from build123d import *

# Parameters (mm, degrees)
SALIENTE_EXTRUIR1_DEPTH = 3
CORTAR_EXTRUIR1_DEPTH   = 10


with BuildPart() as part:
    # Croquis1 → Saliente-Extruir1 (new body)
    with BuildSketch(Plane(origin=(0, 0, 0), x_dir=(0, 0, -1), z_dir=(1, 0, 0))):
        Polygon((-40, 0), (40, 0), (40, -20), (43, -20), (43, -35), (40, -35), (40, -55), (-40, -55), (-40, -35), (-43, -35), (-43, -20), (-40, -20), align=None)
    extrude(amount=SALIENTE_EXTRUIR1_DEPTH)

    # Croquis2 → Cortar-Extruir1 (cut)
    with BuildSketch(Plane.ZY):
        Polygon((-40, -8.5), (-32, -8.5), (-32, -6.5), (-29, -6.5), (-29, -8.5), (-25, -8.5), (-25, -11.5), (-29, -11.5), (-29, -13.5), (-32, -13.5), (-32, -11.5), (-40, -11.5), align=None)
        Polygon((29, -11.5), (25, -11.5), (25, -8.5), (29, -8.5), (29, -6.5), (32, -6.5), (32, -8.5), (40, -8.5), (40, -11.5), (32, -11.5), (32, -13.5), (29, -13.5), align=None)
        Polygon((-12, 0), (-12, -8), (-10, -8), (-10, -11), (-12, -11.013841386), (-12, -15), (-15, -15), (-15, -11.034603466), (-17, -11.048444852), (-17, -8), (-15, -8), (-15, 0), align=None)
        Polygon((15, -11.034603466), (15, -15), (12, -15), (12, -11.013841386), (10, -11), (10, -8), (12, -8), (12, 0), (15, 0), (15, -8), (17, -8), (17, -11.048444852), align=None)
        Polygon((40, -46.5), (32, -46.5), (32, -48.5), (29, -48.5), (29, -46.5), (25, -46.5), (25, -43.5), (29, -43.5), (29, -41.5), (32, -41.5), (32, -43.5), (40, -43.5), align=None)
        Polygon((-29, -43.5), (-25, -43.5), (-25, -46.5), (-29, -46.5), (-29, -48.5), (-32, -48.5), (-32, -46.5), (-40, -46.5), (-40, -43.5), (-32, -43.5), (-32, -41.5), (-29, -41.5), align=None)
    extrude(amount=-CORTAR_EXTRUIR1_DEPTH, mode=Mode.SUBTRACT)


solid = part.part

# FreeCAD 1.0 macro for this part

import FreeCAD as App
import Part
import Sketcher

doc = App.newDocument("Part")
body = doc.addObject("PartDesign::Body", "Body")

sketch1 = body.newObject("Sketcher::SketchObject", "Sketch")
sketch1.AttachmentSupport = (doc.getObject("YZ_Plane"), [""])
sketch1.MapMode = "FlatFace"
sketch1.addGeometry([
    Part.LineSegment(App.Vector(0, -40, 0), App.Vector(0, 40, 0)),
    Part.LineSegment(App.Vector(0, 40, 0), App.Vector(-20, 40, 0)),
    Part.LineSegment(App.Vector(-20, 40, 0), App.Vector(-20, 43, 0)),
    Part.LineSegment(App.Vector(-20, 43, 0), App.Vector(-35, 43, 0)),
    Part.LineSegment(App.Vector(-35, 43, 0), App.Vector(-35, 40, 0)),
    Part.LineSegment(App.Vector(-35, 40, 0), App.Vector(-55, 40, 0)),
    Part.LineSegment(App.Vector(-55, 40, 0), App.Vector(-55, -40, 0)),
    Part.LineSegment(App.Vector(-55, -40, 0), App.Vector(-35, -40, 0)),
    Part.LineSegment(App.Vector(-35, -40, 0), App.Vector(-35, -43, 0)),
    Part.LineSegment(App.Vector(-35, -43, 0), App.Vector(-20, -43, 0)),
    Part.LineSegment(App.Vector(-20, -43, 0), App.Vector(-20, -40, 0)),
    Part.LineSegment(App.Vector(-20, -40, 0), App.Vector(0, -40, 0)),
], False)
sketch1.addConstraint([
    Sketcher.Constraint("Coincident", 0, 2, 1, 1),
    Sketcher.Constraint("Coincident", 1, 2, 2, 1),
    Sketcher.Constraint("Coincident", 2, 2, 3, 1),
    Sketcher.Constraint("Coincident", 3, 2, 4, 1),
    Sketcher.Constraint("Coincident", 4, 2, 5, 1),
    Sketcher.Constraint("Coincident", 5, 2, 6, 1),
    Sketcher.Constraint("Coincident", 6, 2, 7, 1),
    Sketcher.Constraint("Coincident", 7, 2, 8, 1),
    Sketcher.Constraint("Coincident", 8, 2, 9, 1),
    Sketcher.Constraint("Coincident", 9, 2, 10, 1),
    Sketcher.Constraint("Coincident", 10, 2, 11, 1),
    Sketcher.Constraint("Coincident", 11, 2, 0, 1),
    Sketcher.Constraint("Vertical", 0),
    Sketcher.Constraint("Horizontal", 1),
    Sketcher.Constraint("Vertical", 2),
    Sketcher.Constraint("Horizontal", 3),
    Sketcher.Constraint("Vertical", 4),
    Sketcher.Constraint("Horizontal", 5),
    Sketcher.Constraint("Vertical", 6),
    Sketcher.Constraint("Horizontal", 7),
    Sketcher.Constraint("Vertical", 8),
    Sketcher.Constraint("Horizontal", 9),
    Sketcher.Constraint("Vertical", 10),
    Sketcher.Constraint("Horizontal", 11),
    Sketcher.Constraint("Symmetric", 0, 2, 11, 2, -1, 1),
    Sketcher.Constraint("Symmetric", 4, 2, 7, 2, -1),
    Sketcher.Constraint("Symmetric", 2, 2, 9, 2, -1),
    Sketcher.Constraint("Horizontal", 1, 2, 4, 2),
    Sketcher.Constraint("Equal", 1, 5),
    Sketcher.Constraint("DistanceX", 1, 2, 1, 1, 20.0),
    Sketcher.Constraint("DistanceX", 3, 2, 3, 1, 15.0),
    Sketcher.Constraint("DistanceY", 0, 1, 0, 2, 80.0),
    Sketcher.Constraint("DistanceY", 2, 1, 2, 2, 3.0),
])
pad1 = body.newObject("PartDesign::Pad", "Pad")
pad1.Profile = sketch1
pad1.Length = 3

sketch2 = body.newObject("Sketcher::SketchObject", "Sketch001")
sketch2.AttachmentSupport = (doc.getObject("YZ_Plane"), [""])
sketch2.MapMode = "FlatFace"
sketch2.addGeometry([
    Part.LineSegment(App.Vector(-8.5, -32, 0), App.Vector(-8.5, -40, 0)),
    Part.LineSegment(App.Vector(-8.5, -40, 0), App.Vector(-11.5, -40, 0)),
    Part.LineSegment(App.Vector(-11.5, -40, 0), App.Vector(-11.5, -32, 0)),
    Part.LineSegment(App.Vector(-11.5, -32, 0), App.Vector(-13.5, -32, 0)),
    Part.LineSegment(App.Vector(-13.5, -32, 0), App.Vector(-13.5, -29, 0)),
    Part.LineSegment(App.Vector(-13.5, -29, 0), App.Vector(-11.5, -29, 0)),
    Part.LineSegment(App.Vector(-11.5, -29, 0), App.Vector(-11.5, -25, 0)),
    Part.LineSegment(App.Vector(-11.5, -25, 0), App.Vector(-8.5, -25, 0)),
    Part.LineSegment(App.Vector(-8.5, -25, 0), App.Vector(-8.5, -29, 0)),
    Part.LineSegment(App.Vector(-8.5, -29, 0), App.Vector(-6.5, -29, 0)),
    Part.LineSegment(App.Vector(-6.5, -29, 0), App.Vector(-6.5, -32, 0)),
    Part.LineSegment(App.Vector(-6.5, -32, 0), App.Vector(-8.5, -32, 0)),
    Part.LineSegment(App.Vector(-11.5, 25, 0), App.Vector(-11.5, 29, 0)),
    Part.LineSegment(App.Vector(-11.5, 29, 0), App.Vector(-13.5, 29, 0)),
    Part.LineSegment(App.Vector(-13.5, 29, 0), App.Vector(-13.5, 32, 0)),
    Part.LineSegment(App.Vector(-13.5, 32, 0), App.Vector(-11.5, 32, 0)),
    Part.LineSegment(App.Vector(-11.5, 32, 0), App.Vector(-11.5, 40, 0)),
    Part.LineSegment(App.Vector(-11.5, 40, 0), App.Vector(-8.5, 40, 0)),
    Part.LineSegment(App.Vector(-8.5, 40, 0), App.Vector(-8.5, 32, 0)),
    Part.LineSegment(App.Vector(-8.5, 32, 0), App.Vector(-6.5, 32, 0)),
    Part.LineSegment(App.Vector(-6.5, 32, 0), App.Vector(-6.5, 29, 0)),
    Part.LineSegment(App.Vector(-6.5, 29, 0), App.Vector(-8.5, 29, 0)),
    Part.LineSegment(App.Vector(-8.5, 29, 0), App.Vector(-8.5, 25, 0)),
    Part.LineSegment(App.Vector(-8.5, 25, 0), App.Vector(-11.5, 25, 0)),
    Part.LineSegment(App.Vector(-8, -12, 0), App.Vector(0, -12, 0)),
    Part.LineSegment(App.Vector(0, -12, 0), App.Vector(0, -15, 0)),
    Part.LineSegment(App.Vector(0, -15, 0), App.Vector(-8, -15, 0)),
    Part.LineSegment(App.Vector(-8, -15, 0), App.Vector(-8, -17, 0)),
    Part.LineSegment(App.Vector(-8, -17, 0), App.Vector(-11, -17, 0)),
    Part.LineSegment(App.Vector(-11, -17, 0), App.Vector(-11, -15, 0)),
    Part.LineSegment(App.Vector(-11, -15, 0), App.Vector(-15, -15, 0)),
    Part.LineSegment(App.Vector(-15, -15, 0), App.Vector(-15, -12, 0)),
    Part.LineSegment(App.Vector(-15, -12, 0), App.Vector(-11, -12, 0)),
    Part.LineSegment(App.Vector(-11, -12, 0), App.Vector(-11, -10, 0)),
    Part.LineSegment(App.Vector(-11, -10, 0), App.Vector(-8, -10, 0)),
    Part.LineSegment(App.Vector(-8, -10, 0), App.Vector(-8, -12, 0)),
    Part.LineSegment(App.Vector(-15, 15, 0), App.Vector(-11, 15, 0)),
    Part.LineSegment(App.Vector(-11, 15, 0), App.Vector(-11, 17, 0)),
    Part.LineSegment(App.Vector(-11, 17, 0), App.Vector(-8, 17, 0)),
    Part.LineSegment(App.Vector(-8, 17, 0), App.Vector(-8, 15, 0)),
    Part.LineSegment(App.Vector(-8, 15, 0), App.Vector(0, 15, 0)),
    Part.LineSegment(App.Vector(0, 15, 0), App.Vector(0, 12, 0)),
    Part.LineSegment(App.Vector(0, 12, 0), App.Vector(-8, 12, 0)),
    Part.LineSegment(App.Vector(-8, 12, 0), App.Vector(-8, 10, 0)),
    Part.LineSegment(App.Vector(-8, 10, 0), App.Vector(-11, 10, 0)),
    Part.LineSegment(App.Vector(-11, 10, 0), App.Vector(-11, 12, 0)),
    Part.LineSegment(App.Vector(-11, 12, 0), App.Vector(-15, 12, 0)),
    Part.LineSegment(App.Vector(-15, 12, 0), App.Vector(-15, 15, 0)),
    Part.LineSegment(App.Vector(-46.5, 32, 0), App.Vector(-46.5, 40, 0)),
    Part.LineSegment(App.Vector(-46.5, 40, 0), App.Vector(-43.5, 40, 0)),
    Part.LineSegment(App.Vector(-43.5, 40, 0), App.Vector(-43.5, 32, 0)),
    Part.LineSegment(App.Vector(-43.5, 32, 0), App.Vector(-41.5, 32, 0)),
    Part.LineSegment(App.Vector(-41.5, 32, 0), App.Vector(-41.5, 29, 0)),
    Part.LineSegment(App.Vector(-41.5, 29, 0), App.Vector(-43.5, 29, 0)),
    Part.LineSegment(App.Vector(-43.5, 29, 0), App.Vector(-43.5, 25, 0)),
    Part.LineSegment(App.Vector(-43.5, 25, 0), App.Vector(-46.5, 25, 0)),
    Part.LineSegment(App.Vector(-46.5, 25, 0), App.Vector(-46.5, 29, 0)),
    Part.LineSegment(App.Vector(-46.5, 29, 0), App.Vector(-48.5, 29, 0)),
    Part.LineSegment(App.Vector(-48.5, 29, 0), App.Vector(-48.5, 32, 0)),
    Part.LineSegment(App.Vector(-48.5, 32, 0), App.Vector(-46.5, 32, 0)),
    Part.LineSegment(App.Vector(-43.5, -25, 0), App.Vector(-43.5, -29, 0)),
    Part.LineSegment(App.Vector(-43.5, -29, 0), App.Vector(-41.5, -29, 0)),
    Part.LineSegment(App.Vector(-41.5, -29, 0), App.Vector(-41.5, -32, 0)),
    Part.LineSegment(App.Vector(-41.5, -32, 0), App.Vector(-43.5, -32, 0)),
    Part.LineSegment(App.Vector(-43.5, -32, 0), App.Vector(-43.5, -40, 0)),
    Part.LineSegment(App.Vector(-43.5, -40, 0), App.Vector(-46.5, -40, 0)),
    Part.LineSegment(App.Vector(-46.5, -40, 0), App.Vector(-46.5, -32, 0)),
    Part.LineSegment(App.Vector(-46.5, -32, 0), App.Vector(-48.5, -32, 0)),
    Part.LineSegment(App.Vector(-48.5, -32, 0), App.Vector(-48.5, -29, 0)),
    Part.LineSegment(App.Vector(-48.5, -29, 0), App.Vector(-46.5, -29, 0)),
    Part.LineSegment(App.Vector(-46.5, -29, 0), App.Vector(-46.5, -25, 0)),
    Part.LineSegment(App.Vector(-46.5, -25, 0), App.Vector(-43.5, -25, 0)),
], False)
sketch2.addConstraint([
    Sketcher.Constraint("Coincident", 0, 2, 1, 1),
    Sketcher.Constraint("Coincident", 1, 2, 2, 1),
    Sketcher.Constraint("Coincident", 2, 2, 3, 1),
    Sketcher.Constraint("Coincident", 3, 2, 4, 1),
    Sketcher.Constraint("Coincident", 4, 2, 5, 1),
    Sketcher.Constraint("Coincident", 5, 2, 6, 1),
    Sketcher.Constraint("Coincident", 6, 2, 7, 1),
    Sketcher.Constraint("Coincident", 7, 2, 8, 1),
    Sketcher.Constraint("Coincident", 8, 2, 9, 1),
    Sketcher.Constraint("Coincident", 9, 2, 10, 1),
    Sketcher.Constraint("Coincident", 10, 2, 11, 1),
    Sketcher.Constraint("Coincident", 11, 2, 0, 1),
    Sketcher.Constraint("Coincident", 12, 2, 13, 1),
    Sketcher.Constraint("Coincident", 13, 2, 14, 1),
    Sketcher.Constraint("Coincident", 14, 2, 15, 1),
    Sketcher.Constraint("Coincident", 15, 2, 16, 1),
    Sketcher.Constraint("Coincident", 16, 2, 17, 1),
    Sketcher.Constraint("Coincident", 17, 2, 18, 1),
    Sketcher.Constraint("Coincident", 18, 2, 19, 1),
    Sketcher.Constraint("Coincident", 19, 2, 20, 1),
    Sketcher.Constraint("Coincident", 20, 2, 21, 1),
    Sketcher.Constraint("Coincident", 21, 2, 22, 1),
    Sketcher.Constraint("Coincident", 22, 2, 23, 1),
    Sketcher.Constraint("Coincident", 23, 2, 12, 1),
    Sketcher.Constraint("Coincident", 24, 2, 25, 1),
    Sketcher.Constraint("Coincident", 25, 2, 26, 1),
    Sketcher.Constraint("Coincident", 26, 2, 27, 1),
    Sketcher.Constraint("Coincident", 27, 2, 28, 1),
    Sketcher.Constraint("Coincident", 28, 2, 29, 1),
    Sketcher.Constraint("Coincident", 29, 2, 30, 1),
    Sketcher.Constraint("Coincident", 30, 2, 31, 1),
    Sketcher.Constraint("Coincident", 31, 2, 32, 1),
    Sketcher.Constraint("Coincident", 32, 2, 33, 1),
    Sketcher.Constraint("Coincident", 33, 2, 34, 1),
    Sketcher.Constraint("Coincident", 34, 2, 35, 1),
    Sketcher.Constraint("Coincident", 35, 2, 24, 1),
    Sketcher.Constraint("Coincident", 36, 2, 37, 1),
    Sketcher.Constraint("Coincident", 37, 2, 38, 1),
    Sketcher.Constraint("Coincident", 38, 2, 39, 1),
    Sketcher.Constraint("Coincident", 39, 2, 40, 1),
    Sketcher.Constraint("Coincident", 40, 2, 41, 1),
    Sketcher.Constraint("Coincident", 41, 2, 42, 1),
    Sketcher.Constraint("Coincident", 42, 2, 43, 1),
    Sketcher.Constraint("Coincident", 43, 2, 44, 1),
    Sketcher.Constraint("Coincident", 44, 2, 45, 1),
    Sketcher.Constraint("Coincident", 45, 2, 46, 1),
    Sketcher.Constraint("Coincident", 46, 2, 47, 1),
    Sketcher.Constraint("Coincident", 47, 2, 36, 1),
    Sketcher.Constraint("Coincident", 48, 2, 49, 1),
    Sketcher.Constraint("Coincident", 49, 2, 50, 1),
    Sketcher.Constraint("Coincident", 50, 2, 51, 1),
    Sketcher.Constraint("Coincident", 51, 2, 52, 1),
    Sketcher.Constraint("Coincident", 52, 2, 53, 1),
    Sketcher.Constraint("Coincident", 53, 2, 54, 1),
    Sketcher.Constraint("Coincident", 54, 2, 55, 1),
    Sketcher.Constraint("Coincident", 55, 2, 56, 1),
    Sketcher.Constraint("Coincident", 56, 2, 57, 1),
    Sketcher.Constraint("Coincident", 57, 2, 58, 1),
    Sketcher.Constraint("Coincident", 58, 2, 59, 1),
    Sketcher.Constraint("Coincident", 59, 2, 48, 1),
    Sketcher.Constraint("Coincident", 60, 2, 61, 1),
    Sketcher.Constraint("Coincident", 61, 2, 62, 1),
    Sketcher.Constraint("Coincident", 62, 2, 63, 1),
    Sketcher.Constraint("Coincident", 63, 2, 64, 1),
    Sketcher.Constraint("Coincident", 64, 2, 65, 1),
    Sketcher.Constraint("Coincident", 65, 2, 66, 1),
    Sketcher.Constraint("Coincident", 66, 2, 67, 1),
    Sketcher.Constraint("Coincident", 67, 2, 68, 1),
    Sketcher.Constraint("Coincident", 68, 2, 69, 1),
    Sketcher.Constraint("Coincident", 69, 2, 70, 1),
    Sketcher.Constraint("Coincident", 70, 2, 71, 1),
    Sketcher.Constraint("Coincident", 71, 2, 60, 1),
    Sketcher.Constraint("Vertical", 0),
    Sketcher.Constraint("Horizontal", 1),
    Sketcher.Constraint("Vertical", 2),
    Sketcher.Constraint("Horizontal", 3),
    Sketcher.Constraint("Vertical", 4),
    Sketcher.Constraint("Horizontal", 5),
    Sketcher.Constraint("Vertical", 6),
    Sketcher.Constraint("Horizontal", 7),
    Sketcher.Constraint("Vertical", 8),
    Sketcher.Constraint("Horizontal", 9),
    Sketcher.Constraint("Vertical", 10),
    Sketcher.Constraint("Horizontal", 11),
    Sketcher.Constraint("Vertical", 12),
    Sketcher.Constraint("Horizontal", 13),
    Sketcher.Constraint("Vertical", 14),
    Sketcher.Constraint("Horizontal", 15),
    Sketcher.Constraint("Vertical", 16),
    Sketcher.Constraint("Horizontal", 17),
    Sketcher.Constraint("Vertical", 18),
    Sketcher.Constraint("Horizontal", 19),
    Sketcher.Constraint("Vertical", 20),
    Sketcher.Constraint("Horizontal", 21),
    Sketcher.Constraint("Vertical", 22),
    Sketcher.Constraint("Horizontal", 23),
    Sketcher.Constraint("Horizontal", 24),
    Sketcher.Constraint("Vertical", 25),
    Sketcher.Constraint("Horizontal", 26),
    Sketcher.Constraint("Vertical", 27),
    Sketcher.Constraint("Horizontal", 28),
    Sketcher.Constraint("Horizontal", 30),
    Sketcher.Constraint("Vertical", 31),
    Sketcher.Constraint("Horizontal", 32),
    Sketcher.Constraint("Horizontal", 34),
    Sketcher.Constraint("Vertical", 35),
    Sketcher.Constraint("Horizontal", 36),
    Sketcher.Constraint("Horizontal", 38),
    Sketcher.Constraint("Vertical", 39),
    Sketcher.Constraint("Horizontal", 40),
    Sketcher.Constraint("Vertical", 41),
    Sketcher.Constraint("Horizontal", 42),
    Sketcher.Constraint("Vertical", 43),
    Sketcher.Constraint("Horizontal", 44),
    Sketcher.Constraint("Horizontal", 46),
    Sketcher.Constraint("Vertical", 47),
    Sketcher.Constraint("Vertical", 48),
    Sketcher.Constraint("Horizontal", 49),
    Sketcher.Constraint("Vertical", 50),
    Sketcher.Constraint("Horizontal", 51),
    Sketcher.Constraint("Vertical", 52),
    Sketcher.Constraint("Horizontal", 53),
    Sketcher.Constraint("Vertical", 54),
    Sketcher.Constraint("Horizontal", 55),
    Sketcher.Constraint("Vertical", 56),
    Sketcher.Constraint("Horizontal", 57),
    Sketcher.Constraint("Vertical", 58),
    Sketcher.Constraint("Horizontal", 59),
    Sketcher.Constraint("Vertical", 60),
    Sketcher.Constraint("Horizontal", 61),
    Sketcher.Constraint("Vertical", 62),
    Sketcher.Constraint("Horizontal", 63),
    Sketcher.Constraint("Vertical", 64),
    Sketcher.Constraint("Horizontal", 65),
    Sketcher.Constraint("Vertical", 66),
    Sketcher.Constraint("Horizontal", 67),
    Sketcher.Constraint("Vertical", 68),
    Sketcher.Constraint("Horizontal", 69),
    Sketcher.Constraint("Vertical", 70),
    Sketcher.Constraint("Horizontal", 71),
    Sketcher.Constraint("Symmetric", 25, 2, 40, 2, -1, 1),
    Sketcher.Constraint("Symmetric", 5, 2, 12, 2, -1),
    Sketcher.Constraint("Symmetric", 3, 2, 14, 2, -1),
    Sketcher.Constraint("Symmetric", 1, 2, 16, 2, -1),
    Sketcher.Constraint("Symmetric", 11, 2, 18, 2, -1),
    Sketcher.Constraint("Symmetric", 9, 2, 20, 2, -1),
    Sketcher.Constraint("Symmetric", 7, 2, 22, 2, -1),
    Sketcher.Constraint("Symmetric", 29, 2, 36, 2, -1),
    Sketcher.Constraint("Symmetric", 28, 2, 37, 2, -1),
    Sketcher.Constraint("Symmetric", 24, 2, 41, 2, -1),
    Sketcher.Constraint("Symmetric", 34, 2, 43, 2, -1),
    Sketcher.Constraint("Symmetric", 32, 2, 45, 2, -1),
    Sketcher.Constraint("Symmetric", 53, 2, 60, 2, -1),
    Sketcher.Constraint("Symmetric", 51, 2, 62, 2, -1),
    Sketcher.Constraint("Symmetric", 49, 2, 64, 2, -1),
    Sketcher.Constraint("Symmetric", 59, 2, 66, 2, -1),
    Sketcher.Constraint("Symmetric", 57, 2, 68, 2, -1),
    Sketcher.Constraint("Symmetric", 55, 2, 70, 2, -1),
    Sketcher.Constraint("Parallel", 29, 33),
    Sketcher.Constraint("Parallel", 37, 45),
    Sketcher.Constraint("Horizontal", 5, 2, 8, 2),
    Sketcher.Constraint("Horizontal", 3, 2, 10, 2),
    Sketcher.Constraint("Horizontal", 26, 2, 29, 2),
    Sketcher.Constraint("Horizontal", 24, 2, 31, 2),
    Sketcher.Constraint("Horizontal", 17, 2, 48, 2),
    Sketcher.Constraint("Horizontal", 19, 2, 50, 2),
    Sketcher.Constraint("Horizontal", 21, 2, 52, 2),
    Sketcher.Constraint("Horizontal", 23, 2, 54, 2),
    Sketcher.Constraint("Horizontal", 53, 2, 56, 2),
    Sketcher.Constraint("Horizontal", 51, 2, 58, 2),
    Sketcher.Constraint("Vertical", 2, 2, 5, 2),
    Sketcher.Constraint("Vertical", 0, 2, 7, 2),
    Sketcher.Constraint("Vertical", 27, 2, 34, 2),
    Sketcher.Constraint("Vertical", 35, 2, 38, 2),
    Sketcher.Constraint("Vertical", 31, 2, 46, 2),
    Sketcher.Constraint("Vertical", 50, 2, 53, 2),
    Sketcher.Constraint("Vertical", 48, 2, 55, 2),
    Sketcher.Constraint("Equal", 5, 9),
    Sketcher.Constraint("Equal", 23, 34),
    Sketcher.Constraint("Equal", 44, 49),
    Sketcher.Constraint("Equal", 21, 51),
    Sketcher.Constraint("Equal", 53, 57),
    Sketcher.Constraint("Equal", 42, 0),
    Sketcher.Constraint("Equal", 71, 4),
    Sketcher.Constraint("Equal", 20, 25),
    Sketcher.Constraint("Equal", 69, 27),
    Sketcher.Constraint("Equal", 27, 35),
    Sketcher.Constraint("DistanceX", 1, 2, 1, 1, 3.0),
    Sketcher.Constraint("DistanceX", 3, 2, 3, 1, 2.0),
    Sketcher.Constraint("DistanceX", 24, 1, 24, 2, 8.0),
    Sketcher.Constraint("DistanceY", 6, 1, 6, 2, 4.0),
    Sketcher.Constraint("DistanceY", 0, 2, -1, 1, 40.0),
    Sketcher.Constraint("DistanceY", 24, 2, -1, 1, 12.0),
    Sketcher.Constraint("DistanceX", 30, 2, -1, 1, 15.0),
    Sketcher.Constraint("DistanceX", 0, 2, -1, 1, 8.5),
    Sketcher.Constraint("DistanceX", 48, 2, -1, 1, 46.5),
    Sketcher.Constraint("DistanceX", 32, 1, 32, 2, 3.986159),
    Sketcher.Constraint("DistanceX", 28, 2, 28, 1, 3.048445),
])
pocket1 = body.newObject("PartDesign::Pocket", "Pocket")
pocket1.Profile = sketch2
pocket1.Length = 10
pocket1.Reversed = True

doc.recompute()
